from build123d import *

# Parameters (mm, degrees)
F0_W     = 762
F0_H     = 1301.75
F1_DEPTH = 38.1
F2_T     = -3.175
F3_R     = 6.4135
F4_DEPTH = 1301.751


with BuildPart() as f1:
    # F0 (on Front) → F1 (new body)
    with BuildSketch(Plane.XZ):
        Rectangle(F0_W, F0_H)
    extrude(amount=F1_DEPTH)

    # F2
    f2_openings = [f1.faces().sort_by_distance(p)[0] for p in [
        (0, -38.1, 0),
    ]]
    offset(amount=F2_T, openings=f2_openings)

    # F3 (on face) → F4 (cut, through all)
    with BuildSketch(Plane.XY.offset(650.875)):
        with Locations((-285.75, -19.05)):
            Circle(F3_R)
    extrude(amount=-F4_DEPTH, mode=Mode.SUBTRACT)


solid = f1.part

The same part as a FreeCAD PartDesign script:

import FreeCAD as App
import Part
import Sketcher
Q = App.Units.Quantity


def faces_at(feature, points):
    """Names of the faces that lie closest to the given points."""
    faces = feature.Shape.Faces
    near = lambda p: min(range(len(faces)), key=lambda i: faces[i].distToShape(Part.Vertex(*p))[0])
    return sorted({f"Face{near(p) + 1}" for p in points})

doc = App.newDocument("Part")
body = doc.addObject("PartDesign::Body", "Body")

# Sketch on XZ plane
sketch1 = doc.addObject("Sketcher::SketchObject", "Sketch")
body.addObject(sketch1)
sketch1.AttachmentSupport = (doc.XZ_Plane, [""])
sketch1.MapMode = "FlatFace"
sketch1.addGeometry([
    Part.LineSegment(App.Vector(-381, 651, 0), App.Vector(-381, -651, 0)),
    Part.LineSegment(App.Vector(-381, -651, 0), App.Vector(381, -651, 0)),
    Part.LineSegment(App.Vector(381, -651, 0), App.Vector(381, 651, 0)),
    Part.LineSegment(App.Vector(381, 651, 0), App.Vector(-381, 651, 0)),
], False)
sketch1.addConstraint([
    Sketcher.Constraint("Coincident", 0, 2, 1, 1),
    Sketcher.Constraint("Coincident", 1, 2, 2, 1),
    Sketcher.Constraint("Coincident", 2, 2, 3, 1),
    Sketcher.Constraint("Coincident", 3, 2, 0, 1),
    Sketcher.Constraint("Vertical", 0),
    Sketcher.Constraint("Horizontal", 1),
    Sketcher.Constraint("Vertical", 2),
    Sketcher.Constraint("Horizontal", 3),
    Sketcher.Constraint("Symmetric", 0, 2, 2, 2, -1, 1),
    Sketcher.Constraint("DistanceX", 1, 1, 1, 2, Q("30 in")),
    Sketcher.Constraint("DistanceY", 0, 2, 0, 1, Q("51.25 in")),
])
pad1 = doc.addObject("PartDesign::Pad", "Pad")
body.addObject(pad1)
pad1.Profile = sketch1
pad1.Length = Q("1.5 in")
doc.recompute()

thickness = doc.addObject("PartDesign::Thickness", "Thickness")
body.addObject(thickness)
thickness.Base = (pad1, faces_at(pad1, [(0, -38.1, 0)]))
thickness.Value = Q("0.125 in")
thickness.Reversed = True
thickness.Join = "Arc"

# Sketch on XY plane
sketch2 = doc.addObject("Sketcher::SketchObject", "Sketch001")
body.addObject(sketch2)
sketch2.AttachmentSupport = (doc.XY_Plane, [""])
sketch2.MapMode = "FlatFace"
sketch2.AttachmentOffset = App.Placement(App.Vector(0, 0, 25.625 * 25.4), App.Rotation())
sketch2.addGeometry(Part.Circle(App.Vector(-286, -19, 0), App.Vector(0, 0, 1), 6), False)
sketch2.addConstraint([
    Sketcher.Constraint("Diameter", 0, Q("0.505 in")),
    Sketcher.Constraint("DistanceX", 0, 3, -1, 1, Q("11.25 in")),
    Sketcher.Constraint("DistanceY", 0, 3, -1, 1, Q("0.75 in")),
])
pocket1 = doc.addObject("PartDesign::Pocket", "Pocket")
body.addObject(pocket1)
pocket1.Profile = sketch2
pocket1.Type = "ThroughAll"

doc.recompute()
